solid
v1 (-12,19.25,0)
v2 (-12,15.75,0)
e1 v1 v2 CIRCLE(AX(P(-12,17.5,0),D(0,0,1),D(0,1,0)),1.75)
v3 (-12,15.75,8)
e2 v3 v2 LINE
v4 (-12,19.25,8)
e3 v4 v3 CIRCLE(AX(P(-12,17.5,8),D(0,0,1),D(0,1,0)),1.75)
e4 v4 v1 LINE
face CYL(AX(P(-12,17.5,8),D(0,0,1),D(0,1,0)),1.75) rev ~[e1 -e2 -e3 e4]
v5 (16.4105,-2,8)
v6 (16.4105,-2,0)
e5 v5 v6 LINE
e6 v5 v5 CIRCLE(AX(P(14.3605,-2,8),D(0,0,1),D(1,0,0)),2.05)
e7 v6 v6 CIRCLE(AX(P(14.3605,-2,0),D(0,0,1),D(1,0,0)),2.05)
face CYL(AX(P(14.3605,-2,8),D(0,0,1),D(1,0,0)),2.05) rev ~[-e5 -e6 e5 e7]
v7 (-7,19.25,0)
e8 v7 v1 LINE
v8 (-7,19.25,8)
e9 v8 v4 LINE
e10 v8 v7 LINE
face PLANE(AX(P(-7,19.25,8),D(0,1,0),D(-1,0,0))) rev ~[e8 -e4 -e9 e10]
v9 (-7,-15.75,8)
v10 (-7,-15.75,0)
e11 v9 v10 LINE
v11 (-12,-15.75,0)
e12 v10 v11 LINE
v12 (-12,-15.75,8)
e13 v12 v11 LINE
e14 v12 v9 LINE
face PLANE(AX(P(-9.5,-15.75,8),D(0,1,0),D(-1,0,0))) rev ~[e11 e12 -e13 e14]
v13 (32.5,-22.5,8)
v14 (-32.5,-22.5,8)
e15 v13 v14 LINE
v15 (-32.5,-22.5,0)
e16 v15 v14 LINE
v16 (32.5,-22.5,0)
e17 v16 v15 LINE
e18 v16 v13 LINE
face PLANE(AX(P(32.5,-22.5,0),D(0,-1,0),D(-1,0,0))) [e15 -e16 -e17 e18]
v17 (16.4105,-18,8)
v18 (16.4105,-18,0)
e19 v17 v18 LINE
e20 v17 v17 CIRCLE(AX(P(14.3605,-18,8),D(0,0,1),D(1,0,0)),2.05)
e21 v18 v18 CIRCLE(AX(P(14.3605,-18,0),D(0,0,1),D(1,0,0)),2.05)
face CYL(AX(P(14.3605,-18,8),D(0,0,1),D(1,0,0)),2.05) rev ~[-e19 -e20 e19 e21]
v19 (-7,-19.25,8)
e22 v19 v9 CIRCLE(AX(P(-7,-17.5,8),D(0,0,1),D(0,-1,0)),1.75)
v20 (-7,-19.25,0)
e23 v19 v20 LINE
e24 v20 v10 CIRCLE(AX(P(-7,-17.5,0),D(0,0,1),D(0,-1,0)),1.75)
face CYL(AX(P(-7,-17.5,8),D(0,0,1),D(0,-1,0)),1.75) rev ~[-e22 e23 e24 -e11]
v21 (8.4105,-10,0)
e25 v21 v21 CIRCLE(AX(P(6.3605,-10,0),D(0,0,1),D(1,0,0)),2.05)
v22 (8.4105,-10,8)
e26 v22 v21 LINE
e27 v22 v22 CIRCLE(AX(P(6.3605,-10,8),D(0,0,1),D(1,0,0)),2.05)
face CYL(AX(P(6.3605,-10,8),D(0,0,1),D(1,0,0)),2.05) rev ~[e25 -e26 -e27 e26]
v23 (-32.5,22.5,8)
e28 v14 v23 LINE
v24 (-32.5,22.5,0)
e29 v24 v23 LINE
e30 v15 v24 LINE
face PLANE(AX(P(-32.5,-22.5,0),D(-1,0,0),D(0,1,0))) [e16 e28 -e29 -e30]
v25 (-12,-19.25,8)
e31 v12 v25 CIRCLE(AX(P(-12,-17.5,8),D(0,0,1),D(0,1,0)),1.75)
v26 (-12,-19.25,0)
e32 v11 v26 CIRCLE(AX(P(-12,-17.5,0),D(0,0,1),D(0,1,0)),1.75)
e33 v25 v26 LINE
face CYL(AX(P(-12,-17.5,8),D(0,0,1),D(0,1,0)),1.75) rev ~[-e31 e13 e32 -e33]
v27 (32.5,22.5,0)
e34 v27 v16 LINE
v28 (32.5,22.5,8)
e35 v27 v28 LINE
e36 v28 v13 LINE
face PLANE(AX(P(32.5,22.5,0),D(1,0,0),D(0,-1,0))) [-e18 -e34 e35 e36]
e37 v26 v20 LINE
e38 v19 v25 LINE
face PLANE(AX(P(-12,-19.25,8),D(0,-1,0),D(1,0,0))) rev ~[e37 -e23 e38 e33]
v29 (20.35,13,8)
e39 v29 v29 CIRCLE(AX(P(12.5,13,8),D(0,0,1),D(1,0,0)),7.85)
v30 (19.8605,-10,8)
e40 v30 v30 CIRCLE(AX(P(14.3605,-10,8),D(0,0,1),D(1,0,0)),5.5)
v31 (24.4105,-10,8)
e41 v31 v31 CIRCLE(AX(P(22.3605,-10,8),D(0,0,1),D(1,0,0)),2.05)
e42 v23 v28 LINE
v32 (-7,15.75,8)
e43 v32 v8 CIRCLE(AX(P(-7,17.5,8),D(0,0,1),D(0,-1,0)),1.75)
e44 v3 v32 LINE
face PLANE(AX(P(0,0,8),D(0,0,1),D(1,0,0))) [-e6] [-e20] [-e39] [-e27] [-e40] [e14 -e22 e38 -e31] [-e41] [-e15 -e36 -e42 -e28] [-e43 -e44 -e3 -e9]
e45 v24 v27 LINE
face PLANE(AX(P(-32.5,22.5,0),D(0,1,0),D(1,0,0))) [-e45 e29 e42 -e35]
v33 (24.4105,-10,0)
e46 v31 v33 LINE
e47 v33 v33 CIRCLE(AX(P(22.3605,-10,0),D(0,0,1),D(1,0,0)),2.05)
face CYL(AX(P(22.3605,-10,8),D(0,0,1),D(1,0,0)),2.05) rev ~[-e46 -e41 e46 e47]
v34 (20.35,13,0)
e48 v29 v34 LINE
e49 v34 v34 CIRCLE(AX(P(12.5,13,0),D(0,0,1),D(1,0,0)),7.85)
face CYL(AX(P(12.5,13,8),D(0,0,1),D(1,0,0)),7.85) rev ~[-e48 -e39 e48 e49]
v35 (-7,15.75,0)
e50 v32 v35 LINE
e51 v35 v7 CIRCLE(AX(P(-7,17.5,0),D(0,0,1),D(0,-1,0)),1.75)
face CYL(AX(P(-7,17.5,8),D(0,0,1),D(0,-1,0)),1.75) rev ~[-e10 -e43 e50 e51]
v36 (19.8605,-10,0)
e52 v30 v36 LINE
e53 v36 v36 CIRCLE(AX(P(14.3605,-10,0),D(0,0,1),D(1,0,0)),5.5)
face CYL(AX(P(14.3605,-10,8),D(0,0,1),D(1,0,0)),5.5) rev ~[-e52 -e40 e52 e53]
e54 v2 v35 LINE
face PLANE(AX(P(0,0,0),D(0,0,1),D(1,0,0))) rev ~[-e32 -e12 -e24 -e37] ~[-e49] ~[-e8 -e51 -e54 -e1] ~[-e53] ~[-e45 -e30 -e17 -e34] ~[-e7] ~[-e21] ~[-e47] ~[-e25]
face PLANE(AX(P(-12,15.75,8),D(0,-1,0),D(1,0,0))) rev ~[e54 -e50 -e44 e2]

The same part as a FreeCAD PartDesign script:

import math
import FreeCAD as App
import Part
import Sketcher

V = App.Vector
Q = App.Units.Quantity


def add_polygon(sketch, points):
    """Adds a closed chain of lines whose ends are joined by coincident constraints."""
    first, n = sketch.GeometryCount, len(points)
    for a, b in zip(points, points[1:] + points[:1]):
        sketch.addGeometry(Part.LineSegment(App.Vector(*a, 0), App.Vector(*b, 0)), False)
    for i in range(n):
        sketch.addConstraint(Sketcher.Constraint("Coincident", first + i, 2, first + (i + 1) % n, 1))

doc = App.newDocument("Part")
params = doc.addObject("Spreadsheet::Sheet", "Params")
for row, (alias, value) in enumerate([
    ("sketch1_width", "65 mm"),
    ("sketch1_height", "45 mm"),
    ("pad1_length", "8 mm"),
    ("sketch2_width", "5 mm"),
    ("sketch2_radius", "1.75 mm"),
    ("sketch3_diameter", "11 mm"),
    ("sketch3_diameter2", "4.1 mm"),
    ("sketch4_diameter", "15.7 mm"),
    ("pocket3_length", "10 mm"),
], start=1):
    params.set(f"A{row}", alias)
    params.set(f"B{row}", "=" + value)
    params.setAlias(f"B{row}", alias)

body = doc.addObject("PartDesign::Body", "Body")

sketch1 = doc.addObject("Sketcher::SketchObject", "Sketch")
body.addObject(sketch1)
sketch1.AttachmentSupport = (doc.XY_Plane, [""])
sketch1.MapMode = "FlatFace"
add_polygon(sketch1, [(32.5, 22.5), (-32.5, 22.5), (-32.5, -22.5), (32.5, -22.5)])
sketch1.addConstraint([
    Sketcher.Constraint("Horizontal", 0),
    Sketcher.Constraint("Vertical", 1),
    Sketcher.Constraint("Horizontal", 2),
    Sketcher.Constraint("Vertical", 3),
    Sketcher.Constraint("Symmetric", 0, 2, 2, 2, -1, 1),
    Sketcher.Constraint("DistanceX", 0, 2, 0, 1, Q("65 mm")),
    Sketcher.Constraint("DistanceY", 1, 2, 1, 1, Q("45 mm")),
])
sketch1.setExpression("Constraints[9]", "Params.sketch1_width")
sketch1.setExpression("Constraints[10]", "Params.sketch1_height")
pad1 = doc.addObject("PartDesign::Pad", "Pad")
body.addObject(pad1)
pad1.Profile = sketch1
pad1.setExpression("Length", "Params.pad1_length")

sketch2 = doc.addObject("Sketcher::SketchObject", "Sketch001")
body.addObject(sketch2)
sketch2.AttachmentSupport = (doc.XY_Plane, [""])
sketch2.MapMode = "FlatFace"
sketch2.AttachmentOffset = App.Placement(V(0, 0, 8), App.Rotation())
sketch2.addGeometry([
    Part.ArcOfCircle(Part.Circle(V(-12, 17.5, 0), V(0, 0, 1), 1.75), math.radians(90), math.radians(270)),
    Part.LineSegment(V(-12, 15.75, 0), V(-7, 15.75, 0)),
    Part.ArcOfCircle(Part.Circle(V(-7, 17.5, 0), V(0, 0, 1), 1.75), math.radians(-90), math.radians(90)),
    Part.LineSegment(V(-7, 19.25, 0), V(-12, 19.25, 0)),
    Part.ArcOfCircle(Part.Circle(V(-12, -17.5, 0), V(0, 0, 1), 1.75), math.radians(90), math.radians(270)),
    Part.LineSegment(V(-12, -19.25, 0), V(-7, -19.25, 0)),
    Part.ArcOfCircle(Part.Circle(V(-7, -17.5, 0), V(0, 0, 1), 1.75), math.radians(-90), math.radians(90)),
    Part.LineSegment(V(-7, -15.75, 0), V(-12, -15.75, 0)),
], False)
sketch2.addConstraint([
    Sketcher.Constraint("Tangent", 0, 2, 1, 1),
    Sketcher.Constraint("Tangent", 1, 2, 2, 1),
    Sketcher.Constraint("Tangent", 2, 2, 3, 1),
    Sketcher.Constraint("Tangent", 3, 2, 0, 1),
    Sketcher.Constraint("Tangent", 4, 2, 5, 1),
    Sketcher.Constraint("Tangent", 5, 2, 6, 1),
    Sketcher.Constraint("Tangent", 6, 2, 7, 1),
    Sketcher.Constraint("Tangent", 7, 2, 4, 1),
    Sketcher.Constraint("Horizontal", 1),
    Sketcher.Constraint("Horizontal", 3),
    Sketcher.Constraint("Horizontal", 5),
    Sketcher.Constraint("Horizontal", 7),
    Sketcher.Constraint("Equal", 2, 4),
    Sketcher.Constraint("Symmetric", 0, 3, 4, 3, -1),
    Sketcher.Constraint("Vertical", 2, 3, 6, 3),
    Sketcher.Constraint("DistanceX", 1, 1, 1, 2, Q("5 mm")),
    Sketcher.Constraint("Radius", 0, Q("1.75 mm")),
    Sketcher.Constraint("DistanceX", 0, 3, -1, 1, Q("12 mm")),
    Sketcher.Constraint("DistanceY", 4, 3, 0, 3, Q("35 mm")),
])
sketch2.setExpression("Constraints[15]", "Params.sketch2_width")
sketch2.setExpression("Constraints[16]", "Params.sketch2_radius")
pocket1 = doc.addObject("PartDesign::Pocket", "Pocket")
body.addObject(pocket1)
pocket1.Profile = sketch2
pocket1.Type = "ThroughAll"

sketch3 = doc.addObject("Sketcher::SketchObject", "Sketch002")
body.addObject(sketch3)
sketch3.AttachmentSupport = (doc.XY_Plane, [""])
sketch3.MapMode = "FlatFace"
sketch3.AttachmentOffset = App.Placement(V(0, 0, 8), App.Rotation())
sketch3.addGeometry([
    Part.Circle(V(6.3605, -10, 0), V(0, 0, 1), 2.05),
    Part.Circle(V(14.3605, -2, 0), V(0, 0, 1), 2.05),
    Part.Circle(V(22.3605, -10, 0), V(0, 0, 1), 2.05),
    Part.Circle(V(14.3605, -18, 0), V(0, 0, 1), 2.05),
    Part.Circle(V(14.3605, -10, 0), V(0, 0, 1), 5.5),
], False)
sketch3.addConstraint([
    Sketcher.Constraint("Equal", 0, 1),
    Sketcher.Constraint("Equal", 1, 2),
    Sketcher.Constraint("Equal", 2, 3),
    Sketcher.Constraint("Horizontal", 0, 3, 2, 3),
    Sketcher.Constraint("Horizontal", 2, 3, 4, 3),
    Sketcher.Constraint("Vertical", 1, 3, 3, 3),
    Sketcher.Constraint("Vertical", 3, 3, 4, 3),
    Sketcher.Constraint("Diameter", 4, Q("11 mm")),
    Sketcher.Constraint("Diameter", 0, Q("4.1 mm")),
    Sketcher.Constraint("DistanceX", 0, 3, 1, 3, Q("8 mm")),
    Sketcher.Constraint("DistanceY", 0, 3, 1, 3, Q("8 mm")),
    Sketcher.Constraint("DistanceX", 1, 3, 2, 3, Q("8 mm")),
    Sketcher.Constraint("DistanceY", 3, 3, 2, 3, Q("8 mm")),
    Sketcher.Constraint("DistanceY", 0, 3, -1, 1, Q("10 mm")),
    Sketcher.Constraint("DistanceX", -1, 1, 0, 3, Q("6.3605 mm")),
])
sketch3.setExpression("Constraints[7]", "Params.sketch3_diameter")
sketch3.setExpression("Constraints[8]", "Params.sketch3_diameter2")
pocket2 = doc.addObject("PartDesign::Pocket", "Pocket001")
body.addObject(pocket2)
pocket2.Profile = sketch3
pocket2.Type = "ThroughAll"

sketch4 = doc.addObject("Sketcher::SketchObject", "Sketch003")
body.addObject(sketch4)
sketch4.AttachmentSupport = (doc.XY_Plane, [""])
sketch4.MapMode = "FlatFace"
sketch4.AttachmentOffset = App.Placement(V(0, 0, 8), App.Rotation())
sketch4.addGeometry(Part.Circle(V(12.5, 13, 0), V(0, 0, 1), 7.85), False)
sketch4.addConstraint([
    Sketcher.Constraint("Diameter", 0, Q("15.7 mm")),
    Sketcher.Constraint("DistanceY", -1, 1, 0, 3, Q("13 mm")),
    Sketcher.Constraint("DistanceX", -1, 1, 0, 3, Q("12.5 mm")),
])
sketch4.setExpression("Constraints[0]", "Params.sketch4_diameter")
pocket3 = doc.addObject("PartDesign::Pocket", "Pocket002")
body.addObject(pocket3)
pocket3.Profile = sketch4
pocket3.setExpression("Length", "Params.pocket3_length")

doc.recompute()
